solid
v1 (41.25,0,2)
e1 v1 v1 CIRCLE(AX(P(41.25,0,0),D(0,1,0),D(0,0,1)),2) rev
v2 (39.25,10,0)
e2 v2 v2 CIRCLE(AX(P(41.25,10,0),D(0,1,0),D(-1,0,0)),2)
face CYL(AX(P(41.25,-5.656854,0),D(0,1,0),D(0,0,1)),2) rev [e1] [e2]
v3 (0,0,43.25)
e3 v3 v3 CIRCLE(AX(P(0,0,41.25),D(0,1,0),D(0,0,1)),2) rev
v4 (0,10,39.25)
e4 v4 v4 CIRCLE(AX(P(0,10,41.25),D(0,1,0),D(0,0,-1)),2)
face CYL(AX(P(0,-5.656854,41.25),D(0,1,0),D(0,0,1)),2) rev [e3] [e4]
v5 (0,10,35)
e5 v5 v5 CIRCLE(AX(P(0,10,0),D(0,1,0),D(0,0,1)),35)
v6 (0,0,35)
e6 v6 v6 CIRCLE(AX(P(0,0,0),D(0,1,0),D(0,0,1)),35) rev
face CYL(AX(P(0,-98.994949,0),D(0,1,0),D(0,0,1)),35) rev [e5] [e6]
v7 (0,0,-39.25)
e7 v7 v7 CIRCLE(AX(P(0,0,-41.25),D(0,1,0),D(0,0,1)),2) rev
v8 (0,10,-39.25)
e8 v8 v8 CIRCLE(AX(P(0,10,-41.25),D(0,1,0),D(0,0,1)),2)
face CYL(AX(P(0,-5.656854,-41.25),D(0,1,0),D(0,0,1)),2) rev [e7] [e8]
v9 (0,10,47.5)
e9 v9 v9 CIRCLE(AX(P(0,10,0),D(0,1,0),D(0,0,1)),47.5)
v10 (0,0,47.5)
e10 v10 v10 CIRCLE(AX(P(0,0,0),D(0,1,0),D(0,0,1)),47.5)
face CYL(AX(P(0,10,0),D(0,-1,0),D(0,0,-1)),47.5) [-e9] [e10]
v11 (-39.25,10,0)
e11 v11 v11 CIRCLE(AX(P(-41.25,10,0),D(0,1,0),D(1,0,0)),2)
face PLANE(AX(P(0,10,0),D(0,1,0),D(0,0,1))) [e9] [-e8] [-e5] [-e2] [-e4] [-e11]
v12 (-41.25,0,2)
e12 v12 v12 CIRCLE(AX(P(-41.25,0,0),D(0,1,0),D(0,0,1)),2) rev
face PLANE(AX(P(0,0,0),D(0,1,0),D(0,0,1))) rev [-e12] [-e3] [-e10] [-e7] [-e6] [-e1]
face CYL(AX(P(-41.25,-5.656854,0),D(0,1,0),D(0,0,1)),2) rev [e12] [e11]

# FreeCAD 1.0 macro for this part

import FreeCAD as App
import Part
import Sketcher
from FreeCAD import Vector

doc = App.newDocument("Part")
body = doc.addObject("PartDesign::Body", "Body")

# Sketch on XZ plane
sketch1 = doc.addObject("Sketcher::SketchObject", "Sketch")
body.addObject(sketch1)
sketch1.AttachmentSupport = (doc.XZ_Plane, [""])
sketch1.MapMode = "FlatFace"
sketch1.addGeometry(Part.Circle(Vector(0, 0, 0), Vector(0, 0, 1), 47.5), False)
sketch1.addConstraint([
    Sketcher.Constraint("Coincident", 0, 3, -1, 1),
    Sketcher.Constraint("Diameter", 0, 95.0),
])
pad1 = doc.addObject("PartDesign::Pad", "Pad")
body.addObject(pad1)
pad1.Profile = sketch1
pad1.Length = 10
pad1.Reversed = True

# Sketch on XZ plane
sketch2 = doc.addObject("Sketcher::SketchObject", "Sketch001")
body.addObject(sketch2)
sketch2.AttachmentSupport = (doc.XZ_Plane, [""])
sketch2.MapMode = "FlatFace"
sketch2.AttachmentOffset = App.Placement(Vector(0, 0, -10), App.Rotation())
sketch2.addGeometry(Part.Circle(Vector(0, 0, 0), Vector(0, 0, 1), 35), False)
sketch2.addConstraint([
    Sketcher.Constraint("Coincident", 0, 3, -1, 1),
    Sketcher.Constraint("Diameter", 0, 70.0),
])
pocket1 = doc.addObject("PartDesign::Pocket", "Pocket")
body.addObject(pocket1)
pocket1.Profile = sketch2
pocket1.Length = 10
pocket1.Reversed = True

# Sketch on XZ plane
sketch3 = doc.addObject("Sketcher::SketchObject", "Sketch002")
body.addObject(sketch3)
sketch3.AttachmentSupport = (doc.XZ_Plane, [""])
sketch3.MapMode = "FlatFace"
sketch3.AttachmentOffset = App.Placement(Vector(0, 0, -10), App.Rotation())
sketch3.addGeometry(Part.Circle(Vector(0, -41.25, 0), Vector(0, 0, 1), 2), False)
sketch3.addConstraint([
    Sketcher.Constraint("PointOnObject", 0, 3, -2),
    Sketcher.Constraint("Diameter", 0, 4.0),
    Sketcher.Constraint("DistanceY", 0, 3, -1, 1, 41.25),
])
pocket2 = doc.addObject("PartDesign::Pocket", "Pocket001")
body.addObject(pocket2)
pocket2.Profile = sketch3
pocket2.Length = 10
pocket2.Reversed = True
doc.recompute()

polarpattern = doc.addObject("PartDesign::PolarPattern", "PolarPattern")
body.addObject(polarpattern)
polarpattern.Originals = [pocket2]
polarpattern.Axis = (doc.Y_Axis, [""])
polarpattern.Angle = 360
polarpattern.Occurrences = 4
body.Tip = polarpattern

doc.recompute()
